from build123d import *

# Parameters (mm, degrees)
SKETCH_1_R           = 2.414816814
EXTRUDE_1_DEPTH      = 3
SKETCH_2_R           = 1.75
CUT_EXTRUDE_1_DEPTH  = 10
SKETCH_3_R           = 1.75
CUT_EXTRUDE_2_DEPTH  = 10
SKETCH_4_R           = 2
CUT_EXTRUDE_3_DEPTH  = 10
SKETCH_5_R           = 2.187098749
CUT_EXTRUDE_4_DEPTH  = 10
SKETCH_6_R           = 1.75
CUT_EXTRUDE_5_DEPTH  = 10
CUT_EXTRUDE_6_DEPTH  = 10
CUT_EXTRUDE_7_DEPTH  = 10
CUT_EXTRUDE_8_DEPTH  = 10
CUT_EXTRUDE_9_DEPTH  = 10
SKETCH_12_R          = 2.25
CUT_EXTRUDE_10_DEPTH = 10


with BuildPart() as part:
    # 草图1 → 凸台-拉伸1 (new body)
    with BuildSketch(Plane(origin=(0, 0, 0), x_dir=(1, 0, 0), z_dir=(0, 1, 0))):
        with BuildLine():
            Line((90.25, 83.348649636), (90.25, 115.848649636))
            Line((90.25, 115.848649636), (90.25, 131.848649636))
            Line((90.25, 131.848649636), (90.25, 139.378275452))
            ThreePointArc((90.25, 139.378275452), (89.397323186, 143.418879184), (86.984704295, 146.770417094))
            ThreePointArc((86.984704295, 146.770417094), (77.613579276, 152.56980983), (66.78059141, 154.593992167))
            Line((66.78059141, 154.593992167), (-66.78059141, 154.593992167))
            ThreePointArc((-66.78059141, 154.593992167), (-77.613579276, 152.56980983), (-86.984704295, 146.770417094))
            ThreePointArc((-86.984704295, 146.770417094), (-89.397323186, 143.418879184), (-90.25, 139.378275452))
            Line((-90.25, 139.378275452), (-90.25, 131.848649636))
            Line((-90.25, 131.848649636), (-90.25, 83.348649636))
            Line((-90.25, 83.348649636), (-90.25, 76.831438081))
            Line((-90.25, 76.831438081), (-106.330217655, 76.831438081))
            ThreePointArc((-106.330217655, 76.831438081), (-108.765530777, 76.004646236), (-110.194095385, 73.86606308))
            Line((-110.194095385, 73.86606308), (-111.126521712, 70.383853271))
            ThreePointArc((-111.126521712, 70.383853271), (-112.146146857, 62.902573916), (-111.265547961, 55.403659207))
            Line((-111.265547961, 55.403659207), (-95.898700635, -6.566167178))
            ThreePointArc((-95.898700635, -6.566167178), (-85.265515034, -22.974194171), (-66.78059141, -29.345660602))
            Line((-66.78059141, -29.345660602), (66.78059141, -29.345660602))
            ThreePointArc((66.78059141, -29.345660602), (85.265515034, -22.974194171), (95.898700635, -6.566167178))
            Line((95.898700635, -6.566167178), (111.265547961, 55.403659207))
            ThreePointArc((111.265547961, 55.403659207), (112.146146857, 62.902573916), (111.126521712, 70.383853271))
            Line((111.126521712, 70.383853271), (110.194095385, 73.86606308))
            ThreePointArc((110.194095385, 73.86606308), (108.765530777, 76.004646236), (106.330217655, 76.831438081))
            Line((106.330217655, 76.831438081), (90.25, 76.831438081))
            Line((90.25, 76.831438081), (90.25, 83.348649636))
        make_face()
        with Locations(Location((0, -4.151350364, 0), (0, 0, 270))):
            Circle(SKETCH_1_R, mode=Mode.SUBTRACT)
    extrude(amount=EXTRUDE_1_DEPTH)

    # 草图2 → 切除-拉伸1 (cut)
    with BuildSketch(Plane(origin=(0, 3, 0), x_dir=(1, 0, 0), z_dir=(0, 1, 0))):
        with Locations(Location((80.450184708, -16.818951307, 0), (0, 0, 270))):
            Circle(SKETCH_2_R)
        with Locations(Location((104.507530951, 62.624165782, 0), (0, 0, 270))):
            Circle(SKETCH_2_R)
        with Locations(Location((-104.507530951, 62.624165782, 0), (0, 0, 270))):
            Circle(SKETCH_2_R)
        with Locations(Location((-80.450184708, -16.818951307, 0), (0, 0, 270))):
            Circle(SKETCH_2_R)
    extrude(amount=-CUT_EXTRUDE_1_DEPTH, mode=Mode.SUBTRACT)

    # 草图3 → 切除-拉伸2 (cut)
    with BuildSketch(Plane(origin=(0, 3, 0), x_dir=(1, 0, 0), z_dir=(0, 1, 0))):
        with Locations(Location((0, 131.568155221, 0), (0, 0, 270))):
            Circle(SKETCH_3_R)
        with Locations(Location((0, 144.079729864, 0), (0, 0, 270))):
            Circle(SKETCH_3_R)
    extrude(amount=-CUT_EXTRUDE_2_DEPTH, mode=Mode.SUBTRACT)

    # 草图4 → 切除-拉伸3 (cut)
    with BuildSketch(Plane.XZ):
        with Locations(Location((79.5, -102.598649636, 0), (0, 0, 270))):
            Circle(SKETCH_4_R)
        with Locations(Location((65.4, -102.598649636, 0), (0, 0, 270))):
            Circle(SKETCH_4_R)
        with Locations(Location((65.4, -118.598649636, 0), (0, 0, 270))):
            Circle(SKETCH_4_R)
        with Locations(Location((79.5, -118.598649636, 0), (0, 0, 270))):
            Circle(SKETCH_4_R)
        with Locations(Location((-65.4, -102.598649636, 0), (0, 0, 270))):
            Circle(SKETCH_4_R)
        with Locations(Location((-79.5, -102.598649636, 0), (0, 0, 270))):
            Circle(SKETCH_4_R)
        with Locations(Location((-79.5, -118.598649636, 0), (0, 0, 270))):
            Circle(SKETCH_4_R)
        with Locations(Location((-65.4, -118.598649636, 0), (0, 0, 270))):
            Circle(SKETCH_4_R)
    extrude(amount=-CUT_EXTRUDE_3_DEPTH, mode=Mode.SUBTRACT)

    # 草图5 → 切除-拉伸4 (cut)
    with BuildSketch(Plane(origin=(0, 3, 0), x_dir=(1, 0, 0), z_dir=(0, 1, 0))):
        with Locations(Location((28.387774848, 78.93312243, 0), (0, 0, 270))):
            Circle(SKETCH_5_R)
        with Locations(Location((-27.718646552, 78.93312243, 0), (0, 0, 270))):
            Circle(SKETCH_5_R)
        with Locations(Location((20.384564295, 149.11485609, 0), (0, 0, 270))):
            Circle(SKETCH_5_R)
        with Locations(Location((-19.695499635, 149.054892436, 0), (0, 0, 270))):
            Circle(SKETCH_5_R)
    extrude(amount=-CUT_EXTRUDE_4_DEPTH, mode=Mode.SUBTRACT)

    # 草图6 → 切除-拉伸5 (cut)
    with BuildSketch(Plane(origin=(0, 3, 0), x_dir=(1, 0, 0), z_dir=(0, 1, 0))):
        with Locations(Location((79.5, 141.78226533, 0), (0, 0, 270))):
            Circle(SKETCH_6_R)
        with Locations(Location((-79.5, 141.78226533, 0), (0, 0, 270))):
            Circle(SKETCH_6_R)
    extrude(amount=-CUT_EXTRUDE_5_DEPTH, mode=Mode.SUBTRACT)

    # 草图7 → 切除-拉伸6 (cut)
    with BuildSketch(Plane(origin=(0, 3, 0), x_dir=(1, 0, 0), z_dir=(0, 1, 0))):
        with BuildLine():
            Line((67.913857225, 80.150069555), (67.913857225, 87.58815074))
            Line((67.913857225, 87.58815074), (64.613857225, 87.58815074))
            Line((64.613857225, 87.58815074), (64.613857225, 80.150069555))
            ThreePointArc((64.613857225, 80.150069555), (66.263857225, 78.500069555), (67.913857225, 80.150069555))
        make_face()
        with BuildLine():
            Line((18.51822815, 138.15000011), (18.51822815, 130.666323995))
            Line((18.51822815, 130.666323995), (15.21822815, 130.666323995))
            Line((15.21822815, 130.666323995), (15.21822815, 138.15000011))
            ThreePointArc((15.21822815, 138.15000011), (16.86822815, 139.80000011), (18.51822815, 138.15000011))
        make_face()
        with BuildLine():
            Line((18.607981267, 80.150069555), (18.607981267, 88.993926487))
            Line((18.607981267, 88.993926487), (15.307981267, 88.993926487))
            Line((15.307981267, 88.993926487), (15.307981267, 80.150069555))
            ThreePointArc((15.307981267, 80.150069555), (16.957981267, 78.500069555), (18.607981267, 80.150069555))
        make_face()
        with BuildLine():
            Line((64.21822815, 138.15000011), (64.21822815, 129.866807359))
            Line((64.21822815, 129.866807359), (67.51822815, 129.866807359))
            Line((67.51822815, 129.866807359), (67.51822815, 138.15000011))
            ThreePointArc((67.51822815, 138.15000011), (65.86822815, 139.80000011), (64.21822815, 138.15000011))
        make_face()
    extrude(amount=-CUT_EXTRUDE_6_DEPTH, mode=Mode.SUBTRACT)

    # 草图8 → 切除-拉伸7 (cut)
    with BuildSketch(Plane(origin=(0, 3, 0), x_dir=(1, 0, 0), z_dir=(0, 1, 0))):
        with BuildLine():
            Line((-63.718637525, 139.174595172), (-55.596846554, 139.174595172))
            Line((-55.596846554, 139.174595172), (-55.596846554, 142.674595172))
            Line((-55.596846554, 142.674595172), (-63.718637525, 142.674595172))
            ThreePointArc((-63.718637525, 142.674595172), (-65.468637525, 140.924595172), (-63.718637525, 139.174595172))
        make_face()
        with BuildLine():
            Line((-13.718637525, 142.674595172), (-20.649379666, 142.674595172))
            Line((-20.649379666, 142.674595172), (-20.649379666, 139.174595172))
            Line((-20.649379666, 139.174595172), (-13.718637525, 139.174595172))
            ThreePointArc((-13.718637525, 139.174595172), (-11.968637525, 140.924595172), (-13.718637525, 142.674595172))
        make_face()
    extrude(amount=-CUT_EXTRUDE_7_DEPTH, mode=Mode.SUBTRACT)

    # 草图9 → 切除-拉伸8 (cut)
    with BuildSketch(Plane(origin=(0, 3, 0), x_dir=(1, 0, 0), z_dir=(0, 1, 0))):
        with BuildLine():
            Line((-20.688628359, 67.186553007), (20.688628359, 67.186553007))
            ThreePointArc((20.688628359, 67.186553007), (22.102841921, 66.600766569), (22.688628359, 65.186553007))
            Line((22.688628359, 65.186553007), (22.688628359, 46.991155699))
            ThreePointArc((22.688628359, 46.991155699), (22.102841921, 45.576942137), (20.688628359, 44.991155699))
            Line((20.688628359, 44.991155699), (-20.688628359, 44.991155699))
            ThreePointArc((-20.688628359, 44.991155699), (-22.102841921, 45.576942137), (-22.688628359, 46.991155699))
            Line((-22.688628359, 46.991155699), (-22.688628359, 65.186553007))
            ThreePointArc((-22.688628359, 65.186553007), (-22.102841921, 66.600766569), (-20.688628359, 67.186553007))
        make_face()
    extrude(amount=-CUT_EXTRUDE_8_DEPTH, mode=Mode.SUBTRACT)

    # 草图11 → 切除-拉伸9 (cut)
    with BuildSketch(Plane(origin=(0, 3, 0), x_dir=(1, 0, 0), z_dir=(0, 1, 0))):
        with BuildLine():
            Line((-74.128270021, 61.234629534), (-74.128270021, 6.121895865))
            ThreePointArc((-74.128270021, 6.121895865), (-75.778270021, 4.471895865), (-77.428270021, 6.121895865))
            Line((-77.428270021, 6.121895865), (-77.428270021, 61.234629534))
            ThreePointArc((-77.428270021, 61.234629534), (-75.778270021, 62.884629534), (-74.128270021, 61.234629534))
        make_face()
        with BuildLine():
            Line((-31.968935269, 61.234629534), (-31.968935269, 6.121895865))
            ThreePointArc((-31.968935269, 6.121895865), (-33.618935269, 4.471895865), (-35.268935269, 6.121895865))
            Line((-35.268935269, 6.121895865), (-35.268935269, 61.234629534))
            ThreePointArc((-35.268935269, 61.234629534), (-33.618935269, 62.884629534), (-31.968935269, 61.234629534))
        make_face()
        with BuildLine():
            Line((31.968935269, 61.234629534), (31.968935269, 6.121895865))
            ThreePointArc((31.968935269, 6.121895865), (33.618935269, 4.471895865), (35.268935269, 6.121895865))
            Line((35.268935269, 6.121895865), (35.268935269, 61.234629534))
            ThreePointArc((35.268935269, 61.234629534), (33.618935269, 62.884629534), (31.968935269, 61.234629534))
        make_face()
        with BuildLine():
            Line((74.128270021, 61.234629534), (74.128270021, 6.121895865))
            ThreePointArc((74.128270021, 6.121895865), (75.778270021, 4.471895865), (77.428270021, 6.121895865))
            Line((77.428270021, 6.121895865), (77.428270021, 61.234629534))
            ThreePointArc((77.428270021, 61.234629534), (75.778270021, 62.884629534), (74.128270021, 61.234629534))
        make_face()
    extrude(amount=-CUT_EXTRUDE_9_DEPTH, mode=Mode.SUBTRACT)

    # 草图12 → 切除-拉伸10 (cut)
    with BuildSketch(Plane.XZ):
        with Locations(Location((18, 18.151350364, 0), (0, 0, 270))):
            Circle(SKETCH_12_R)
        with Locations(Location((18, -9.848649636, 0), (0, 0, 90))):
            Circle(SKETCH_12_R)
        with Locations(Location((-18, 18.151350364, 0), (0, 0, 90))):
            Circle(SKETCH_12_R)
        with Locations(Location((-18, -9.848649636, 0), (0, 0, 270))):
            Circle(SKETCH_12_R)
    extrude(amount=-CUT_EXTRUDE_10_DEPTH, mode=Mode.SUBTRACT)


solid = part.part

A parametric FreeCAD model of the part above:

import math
import FreeCAD as App
import Part
import Sketcher
from FreeCAD import Vector

doc = App.newDocument("Part")
params = doc.addObject("Spreadsheet::Sheet", "Params")
for row, (alias, value) in enumerate([
    ("sketch1_radius", "10 mm"),
    ("sketch1_radius2", "30 mm"),
    ("sketch1_radius3", "4 mm"),
    ("pad1_length", "3 mm"),
    ("sketch2_diameter", "3.5 mm"),
    ("pocket1_length", "10 mm"),
    ("sketch3_diameter", "3.5 mm"),
    ("pocket2_length", "10 mm"),
    ("sketch4_diameter", "4 mm"),
    ("pocket3_length", "10 mm"),
    ("pocket4_length", "10 mm"),
    ("sketch6_diameter", "3.5 mm"),
    ("pocket5_length", "10 mm"),
    ("sketch7_radius", "1.65 mm"),
    ("pocket6_length", "10 mm"),
    ("sketch8_radius", "1.75 mm"),
    ("pocket7_length", "10 mm"),
    ("sketch9_radius", "2 mm"),
    ("pocket8_length", "10 mm"),
    ("sketch10_radius", "1.65 mm"),
    ("pocket9_length", "10 mm"),
    ("sketch11_diameter", "4.5 mm"),
    ("pocket10_length", "10 mm"),
], start=1):
    params.set(f"A{row}", alias)
    params.set(f"B{row}", "=" + value)
    params.setAlias(f"B{row}", alias)

body = doc.addObject("PartDesign::Body", "Body")

sketch1 = doc.addObject("Sketcher::SketchObject", "Sketch")
body.addObject(sketch1)
sketch1.AttachmentSupport = (doc.XZ_Plane, [""])
sketch1.MapMode = "FlatFace"
sketch1.addGeometry([
    Part.ArcOfCircle(Part.Circle(Vector(80.25, -139.378275, 0), Vector(0, 0, 1), 10), math.radians(-47.664517), math.radians(0)),
    Part.ArcOfCircle(Part.Circle(Vector(66.780591, -124.593992, 0), Vector(0, 0, 1), 30), math.radians(-90), math.radians(-47.664517)),
    Part.LineSegment(Vector(66.780591, -154.593992, 0), Vector(-66.780591, -154.593992, 0)),
    Part.ArcOfCircle(Part.Circle(Vector(-66.780591, -124.593992, 0), Vector(0, 0, 1), 30), math.radians(-132.335483), math.radians(-90)),
    Part.ArcOfCircle(Part.Circle(Vector(-80.25, -139.378275, 0), Vector(0, 0, 1), 10), math.radians(-180), math.radians(-132.335483)),
    Part.LineSegment(Vector(-90.25, -139.378275, 0), Vector(-90.25, -76.831438, 0)),
    Part.LineSegment(Vector(-90.25, -76.831438, 0), Vector(-106.330218, -76.831438, 0)),
    Part.ArcOfCircle(Part.Circle(Vector(-106.330218, -72.831438, 0), Vector(0, 0, 1), 4), math.radians(-165.009656), math.radians(-90)),
    Part.LineSegment(Vector(-110.194095, -73.866063, 0), Vector(-111.126522, -70.383853, 0)),
    Part.ArcOfCircle(Part.Circle(Vector(-82.147439, -62.624166, 0), Vector(0, 0, 1), 30), math.radians(166.073112), math.radians(194.990344)),
    Part.LineSegment(Vector(-111.265548, -55.403659, 0), Vector(-95.898701, 6.566167, 0)),
    Part.ArcOfCircle(Part.Circle(Vector(-66.780591, -0.654339, 0), Vector(0, 0, 1), 30), math.radians(90), math.radians(166.073112)),
    Part.LineSegment(Vector(-66.780591, 29.345661, 0), Vector(66.780591, 29.345661, 0)),
    Part.ArcOfCircle(Part.Circle(Vector(66.780591, -0.654339, 0), Vector(0, 0, 1), 30), math.radians(13.926888), math.radians(90)),
    Part.LineSegment(Vector(95.898701, 6.566167, 0), Vector(111.265548, -55.403659, 0)),
    Part.ArcOfCircle(Part.Circle(Vector(82.147439, -62.624166, 0), Vector(0, 0, 1), 30), math.radians(-14.990344), math.radians(13.926888)),
    Part.LineSegment(Vector(111.126522, -70.383853, 0), Vector(110.194095, -73.866063, 0)),
    Part.ArcOfCircle(Part.Circle(Vector(106.330218, -72.831438, 0), Vector(0, 0, 1), 4), math.radians(-90), math.radians(-14.990344)),
    Part.LineSegment(Vector(106.330218, -76.831438, 0), Vector(90.25, -76.831438, 0)),
    Part.LineSegment(Vector(90.25, -76.831438, 0), Vector(90.25, -139.378275, 0)),
    Part.Circle(Vector(0, 4.15135, 0), Vector(0, 0, 1), 2.414817),
], False)
sketch1.addConstraint([
    Sketcher.Constraint("Tangent", 0, 1, 1, 2),
    Sketcher.Constraint("Tangent", 1, 1, 2, 1),
    Sketcher.Constraint("Tangent", 2, 2, 3, 2),
    Sketcher.Constraint("Tangent", 3, 1, 4, 2),
    Sketcher.Constraint("Tangent", 4, 1, 5, 1),
    Sketcher.Constraint("Coincident", 5, 2, 6, 1),
    Sketcher.Constraint("Tangent", 6, 2, 7, 2),
    Sketcher.Constraint("Tangent", 7, 1, 8, 1),
    Sketcher.Constraint("Tangent", 8, 2, 9, 2),
    Sketcher.Constraint("Tangent", 9, 1, 10, 1),
    Sketcher.Constraint("Tangent", 10, 2, 11, 2),
    Sketcher.Constraint("Tangent", 11, 1, 12, 1),
    Sketcher.Constraint("Tangent", 12, 2, 13, 2),
    Sketcher.Constraint("Tangent", 13, 1, 14, 1),
    Sketcher.Constraint("Tangent", 14, 2, 15, 2),
    Sketcher.Constraint("Tangent", 15, 1, 16, 1),
    Sketcher.Constraint("Tangent", 16, 2, 17, 2),
    Sketcher.Constraint("Tangent", 17, 1, 18, 1),
    Sketcher.Constraint("Coincident", 18, 2, 19, 1),
    Sketcher.Constraint("Tangent", 19, 2, 0, 2),
    Sketcher.Constraint("Horizontal", 2),
    Sketcher.Constraint("Vertical", 5),
    Sketcher.Constraint("Horizontal", 6),
    Sketcher.Constraint("Horizontal", 12),
    Sketcher.Constraint("Horizontal", 18),
    Sketcher.Constraint("Vertical", 19),
    Sketcher.Constraint("Equal", 1, 3),
    Sketcher.Constraint("Equal", 0, 4),
    Sketcher.Constraint("Equal", 3, 9),
    Sketcher.Constraint("Equal", 9, 11),
    Sketcher.Constraint("Equal", 11, 13),
    Sketcher.Constraint("Equal", 13, 15),
    Sketcher.Constraint("Equal", 7, 17),
    Sketcher.Constraint("Symmetric", 0, 3, 4, 3, -2),
    Sketcher.Constraint("Symmetric", 9, 3, 15, 3, -2),
    Sketcher.Constraint("Symmetric", 7, 3, 17, 3, -2),
    Sketcher.Constraint("PointOnObject", 20, 3, -2),
    Sketcher.Constraint("Horizontal", 10, 2, 13, 1),
    Sketcher.Constraint("Vertical", 3, 3, 11, 3),
    Sketcher.Constraint("Radius", 0, 10.0),
    Sketcher.Constraint("Radius", 1, 30.0),
    Sketcher.Constraint("Radius", 7, 4.0),
    Sketcher.Constraint("DistanceX", 4, 3, 0, 3, 160.5),
    Sketcher.Constraint("Diameter", 20, 4.829634),
    Sketcher.Constraint("DistanceX", 10, 2, -1, 1, 95.898701),
    Sketcher.Constraint("DistanceY", 7, 3, 11, 3, 72.177099),
    Sketcher.Constraint("DistanceX", 2, 2, 2, 1, 133.561183),
    Sketcher.Constraint("DistanceX", 6, 2, 6, 1, 16.080218),
    Sketcher.Constraint("DistanceY", 5, 1, 5, 2, 62.546837),
    Sketcher.Constraint("DistanceY", 7, 3, -1, 1, 72.831438),
    Sketcher.Constraint("DistanceX", 9, 3, -1, 1, 82.147439),
    Sketcher.Constraint("DistanceY", -1, 1, 20, 3, 4.15135),
])
sketch1.setExpression("Constraints[39]", "Params.sketch1_radius")
sketch1.setExpression("Constraints[40]", "Params.sketch1_radius2")
sketch1.setExpression("Constraints[41]", "Params.sketch1_radius3")
pad1 = doc.addObject("PartDesign::Pad", "Pad")
body.addObject(pad1)
pad1.Profile = sketch1
pad1.setExpression("Length", "Params.pad1_length")
pad1.Reversed = True

sketch2 = doc.addObject("Sketcher::SketchObject", "Sketch001")
body.addObject(sketch2)
sketch2.AttachmentSupport = (doc.XZ_Plane, [""])
sketch2.MapMode = "FlatFace"
sketch2.AttachmentOffset = App.Placement(Vector(0, 0, -3), App.Rotation())
sketch2.addGeometry([
    Part.Circle(Vector(80.5, 16.8, 0), Vector(0, 0, 1), 1.8),
    Part.Circle(Vector(104.5, -62.6, 0), Vector(0, 0, 1), 1.8),
    Part.Circle(Vector(-104.5, -62.6, 0), Vector(0, 0, 1), 1.8),
    Part.Circle(Vector(-80.5, 16.8, 0), Vector(0, 0, 1), 1.8),
], False)
sketch2.addConstraint([
    Sketcher.Constraint("Equal", 0, 1),
    Sketcher.Constraint("Equal", 1, 2),
    Sketcher.Constraint("Equal", 2, 3),
    Sketcher.Constraint("Symmetric", 1, 3, 2, 3, -2),
    Sketcher.Constraint("Symmetric", 0, 3, 3, 3, -2),
    Sketcher.Constraint("Diameter", 0, 3.5),
    Sketcher.Constraint("DistanceY", -1, 1, 0, 3, 16.818951),
    Sketcher.Constraint("DistanceX", -1, 1, 1, 3, 104.507531),
    Sketcher.Constraint("DistanceX", 3, 3, 0, 3, 160.900369),
    Sketcher.Constraint("DistanceY", 1, 3, -1, 1, 62.624166),
])
sketch2.setExpression("Constraints[5]", "Params.sketch2_diameter")
pocket1 = doc.addObject("PartDesign::Pocket", "Pocket")
body.addObject(pocket1)
pocket1.Profile = sketch2
pocket1.setExpression("Length", "Params.pocket1_length")
pocket1.Reversed = True

sketch3 = doc.addObject("Sketcher::SketchObject", "Sketch002")
body.addObject(sketch3)
sketch3.AttachmentSupport = (doc.XZ_Plane, [""])
sketch3.MapMode = "FlatFace"
sketch3.AttachmentOffset = App.Placement(Vector(0, 0, -3), App.Rotation())
sketch3.addGeometry([
    Part.Circle(Vector(0, -131.6, 0), Vector(0, 0, 1), 1.8),
    Part.Circle(Vector(0, -144.1, 0), Vector(0, 0, 1), 1.8),
], False)
sketch3.addConstraint([
    Sketcher.Constraint("Equal", 0, 1),
    Sketcher.Constraint("PointOnObject", 0, 3, -2),
    Sketcher.Constraint("PointOnObject", 1, 3, -2),
    Sketcher.Constraint("Diameter", 0, 3.5),
    Sketcher.Constraint("DistanceY", 1, 3, -1, 1, 144.07973),
    Sketcher.Constraint("DistanceY", 0, 3, -1, 1, 131.568155),
])
sketch3.setExpression("Constraints[3]", "Params.sketch3_diameter")
pocket2 = doc.addObject("PartDesign::Pocket", "Pocket001")
body.addObject(pocket2)
pocket2.Profile = sketch3
pocket2.setExpression("Length", "Params.pocket2_length")
pocket2.Reversed = True

sketch4 = doc.addObject("Sketcher::SketchObject", "Sketch003")
body.addObject(sketch4)
sketch4.AttachmentSupport = (doc.XZ_Plane, [""])
sketch4.MapMode = "FlatFace"
sketch4.addGeometry([
    Part.Circle(Vector(79.5, -102.6, 0), Vector(0, 0, 1), 2),
    Part.Circle(Vector(65.4, -102.6, 0), Vector(0, 0, 1), 2),
    Part.Circle(Vector(65.4, -118.6, 0), Vector(0, 0, 1), 2),
    Part.Circle(Vector(79.5, -118.6, 0), Vector(0, 0, 1), 2),
    Part.Circle(Vector(-65.4, -102.6, 0), Vector(0, 0, 1), 2),
    Part.Circle(Vector(-79.5, -102.6, 0), Vector(0, 0, 1), 2),
    Part.Circle(Vector(-79.5, -118.6, 0), Vector(0, 0, 1), 2),
    Part.Circle(Vector(-65.4, -118.6, 0), Vector(0, 0, 1), 2),
], False)
sketch4.addConstraint([
    Sketcher.Constraint("Equal", 0, 1),
    Sketcher.Constraint("Equal", 1, 2),
    Sketcher.Constraint("Equal", 2, 3),
    Sketcher.Constraint("Equal", 3, 4),
    Sketcher.Constraint("Equal", 4, 5),
    Sketcher.Constraint("Equal", 5, 6),
    Sketcher.Constraint("Equal", 6, 7),
    Sketcher.Constraint("Symmetric", 1, 3, 4, 3, -2),
    Sketcher.Constraint("Symmetric", 0, 3, 5, 3, -2),
    Sketcher.Constraint("Symmetric", 3, 3, 6, 3, -2),
    Sketcher.Constraint("Symmetric", 2, 3, 7, 3, -2),
    Sketcher.Constraint("Horizontal", 0, 3, 1, 3),
    Sketcher.Constraint("Horizontal", 2, 3, 3, 3),
    Sketcher.Constraint("Vertical", 1, 3, 2, 3),
    Sketcher.Constraint("Vertical", 0, 3, 3, 3),
    Sketcher.Constraint("Diameter", 0, 4.0),
    Sketcher.Constraint("DistanceY", 2, 3, 1, 3, 16.0),
    Sketcher.Constraint("DistanceX", 5, 3, 0, 3, 159.0),
    Sketcher.Constraint("DistanceX", -1, 1, 1, 3, 65.4),
    Sketcher.Constraint("DistanceY", 0, 3, -1, 1, 102.59865),
])
sketch4.setExpression("Constraints[15]", "Params.sketch4_diameter")
pocket3 = doc.addObject("PartDesign::Pocket", "Pocket002")
body.addObject(pocket3)
pocket3.Profile = sketch4
pocket3.setExpression("Length", "Params.pocket3_length")

sketch5 = doc.addObject("Sketcher::SketchObject", "Sketch004")
body.addObject(sketch5)
sketch5.AttachmentSupport = (doc.XZ_Plane, [""])
sketch5.MapMode = "FlatFace"
sketch5.AttachmentOffset = App.Placement(Vector(0, 0, -3), App.Rotation())
sketch5.addGeometry([
    Part.Circle(Vector(28.4, -78.9, 0), Vector(0, 0, 1), 2.2),
    Part.Circle(Vector(-27.7, -78.9, 0), Vector(0, 0, 1), 2.2),
    Part.Circle(Vector(20.4, -149.1, 0), Vector(0, 0, 1), 2.2),
    Part.Circle(Vector(-19.7, -149.1, 0), Vector(0, 0, 1), 2.2),
], False)
sketch5.addConstraint([
    Sketcher.Constraint("Equal", 0, 1),
    Sketcher.Constraint("Equal", 1, 2),
    Sketcher.Constraint("Equal", 2, 3),
    Sketcher.Constraint("Horizontal", 0, 3, 1, 3),
    Sketcher.Constraint("Diameter", 0, 4.374197),
    Sketcher.Constraint("DistanceX", 3, 3, -1, 1, 19.6955),
    Sketcher.Constraint("DistanceX", 1, 3, 0, 3, 56.106421),
    Sketcher.Constraint("DistanceX", 2, 3, 0, 3, 8.003211),
    Sketcher.Constraint("DistanceY", 3, 3, 1, 3, 70.12177),
    Sketcher.Constraint("DistanceX", -1, 1, 0, 3, 28.387775),
    Sketcher.Constraint("DistanceY", 0, 3, -1, 1, 78.933122),
    Sketcher.Constraint("DistanceY", 2, 3, -1, 1, 149.114856),
])
pocket4 = doc.addObject("PartDesign::Pocket", "Pocket003")
body.addObject(pocket4)
pocket4.Profile = sketch5
pocket4.setExpression("Length", "Params.pocket4_length")
pocket4.Reversed = True

sketch6 = doc.addObject("Sketcher::SketchObject", "Sketch005")
body.addObject(sketch6)
sketch6.AttachmentSupport = (doc.XZ_Plane, [""])
sketch6.MapMode = "FlatFace"
sketch6.AttachmentOffset = App.Placement(Vector(0, 0, -3), App.Rotation())
sketch6.addGeometry([
    Part.Circle(Vector(79.5, -141.8, 0), Vector(0, 0, 1), 1.8),
    Part.Circle(Vector(-79.5, -141.8, 0), Vector(0, 0, 1), 1.8),
], False)
sketch6.addConstraint([
    Sketcher.Constraint("Equal", 0, 1),
    Sketcher.Constraint("Symmetric", 0, 3, 1, 3, -2),
    Sketcher.Constraint("Diameter", 0, 3.5),
    Sketcher.Constraint("DistanceX", 1, 3, 0, 3, 159.0),
    Sketcher.Constraint("DistanceY", 0, 3, -1, 1, 141.782265),
])
sketch6.setExpression("Constraints[2]", "Params.sketch6_diameter")
pocket5 = doc.addObject("PartDesign::Pocket", "Pocket004")
body.addObject(pocket5)
pocket5.Profile = sketch6
pocket5.setExpression("Length", "Params.pocket5_length")
pocket5.Reversed = True

sketch7 = doc.addObject("Sketcher::SketchObject", "Sketch006")
body.addObject(sketch7)
sketch7.AttachmentSupport = (doc.XZ_Plane, [""])
sketch7.MapMode = "FlatFace"
sketch7.AttachmentOffset = App.Placement(Vector(0, 0, -3), App.Rotation())
sketch7.addGeometry([
    Part.LineSegment(Vector(67.9, -80.2, 0), Vector(67.9, -87.6, 0)),
    Part.LineSegment(Vector(67.9, -87.6, 0), Vector(64.6, -87.6, 0)),
    Part.LineSegment(Vector(64.6, -87.6, 0), Vector(64.6, -80.2, 0)),
    Part.ArcOfCircle(Part.Circle(Vector(66.3, -80.2, 0), Vector(0, 0, 1), 1.6), math.radians(0), math.radians(180)),
    Part.LineSegment(Vector(18.5, -130.7, 0), Vector(18.5, -138.2, 0)),
    Part.ArcOfCircle(Part.Circle(Vector(16.9, -138.2, 0), Vector(0, 0, 1), 1.6), math.radians(180), math.radians(360)),
    Part.LineSegment(Vector(15.2, -138.2, 0), Vector(15.2, -130.7, 0)),
    Part.LineSegment(Vector(15.2, -130.7, 0), Vector(18.5, -130.7, 0)),
    Part.LineSegment(Vector(18.6, -80.2, 0), Vector(18.6, -89, 0)),
    Part.LineSegment(Vector(18.6, -89, 0), Vector(15.3, -89, 0)),
    Part.LineSegment(Vector(15.3, -89, 0), Vector(15.3, -80.2, 0)),
    Part.ArcOfCircle(Part.Circle(Vector(17, -80.2, 0), Vector(0, 0, 1), 1.6), math.radians(0), math.radians(180)),
    Part.LineSegment(Vector(64.2, -138.2, 0), Vector(64.2, -129.9, 0)),
    Part.LineSegment(Vector(64.2, -129.9, 0), Vector(67.5, -129.9, 0)),
    Part.LineSegment(Vector(67.5, -129.9, 0), Vector(67.5, -138.2, 0)),
    Part.ArcOfCircle(Part.Circle(Vector(65.9, -138.2, 0), Vector(0, 0, 1), 1.6), math.radians(180), math.radians(360)),
], False)
sketch7.addConstraint([
    Sketcher.Constraint("Coincident", 0, 2, 1, 1),
    Sketcher.Constraint("Coincident", 1, 2, 2, 1),
    Sketcher.Constraint("Tangent", 2, 2, 3, 2),
    Sketcher.Constraint("Tangent", 3, 1, 0, 1),
    Sketcher.Constraint("Tangent", 4, 2, 5, 2),
    Sketcher.Constraint("Tangent", 5, 1, 6, 1),
    Sketcher.Constraint("Coincident", 6, 2, 7, 1),
    Sketcher.Constraint("Coincident", 7, 2, 4, 1),
    Sketcher.Constraint("Coincident", 8, 2, 9, 1),
    Sketcher.Constraint("Coincident", 9, 2, 10, 1),
    Sketcher.Constraint("Tangent", 10, 2, 11, 2),
    Sketcher.Constraint("Tangent", 11, 1, 8, 1),
    Sketcher.Constraint("Coincident", 12, 2, 13, 1),
    Sketcher.Constraint("Coincident", 13, 2, 14, 1),
    Sketcher.Constraint("Tangent", 14, 2, 15, 2),
    Sketcher.Constraint("Tangent", 15, 1, 12, 1),
    Sketcher.Constraint("Vertical", 0),
    Sketcher.Constraint("Horizontal", 1),
    Sketcher.Constraint("Vertical", 2),
    Sketcher.Constraint("Vertical", 4),
    Sketcher.Constraint("Vertical", 6),
    Sketcher.Constraint("Horizontal", 7),
    Sketcher.Constraint("Vertical", 8),
    Sketcher.Constraint("Horizontal", 9),
    Sketcher.Constraint("Vertical", 10),
    Sketcher.Constraint("Vertical", 12),
    Sketcher.Constraint("Horizontal", 13),
    Sketcher.Constraint("Vertical", 14),
    Sketcher.Constraint("Equal", 3, 5),
    Sketcher.Constraint("Equal", 5, 11),
    Sketcher.Constraint("Equal", 11, 15),
    Sketcher.Constraint("Horizontal", 3, 3, 11, 3),
    Sketcher.Constraint("Horizontal", 5, 3, 15, 3),
    Sketcher.Constraint("Radius", 3, 1.65),
    Sketcher.Constraint("DistanceX", 5, 3, 15, 3, 49.0),
    Sketcher.Constraint("DistanceY", 5, 3, -1, 1, 138.15),
    Sketcher.Constraint("DistanceY", 0, 2, 0, 1, 7.438081),
    Sketcher.Constraint("DistanceY", 4, 2, 4, 1, 7.483676),
    Sketcher.Constraint("DistanceY", 8, 2, 8, 1, 8.843857),
    Sketcher.Constraint("DistanceY", 12, 1, 12, 2, 8.283193),
    Sketcher.Constraint("DistanceY", 3, 3, -1, 1, 80.15007),
    Sketcher.Constraint("DistanceX", -1, 1, 5, 3, 16.868228),
    Sketcher.Constraint("DistanceX", -1, 1, 11, 3, 16.957981),
    Sketcher.Constraint("DistanceX", 5, 3, 3, 3, 49.395629),
])
sketch7.setExpression("Constraints[33]", "Params.sketch7_radius")
pocket6 = doc.addObject("PartDesign::Pocket", "Pocket005")
body.addObject(pocket6)
pocket6.Profile = sketch7
pocket6.setExpression("Length", "Params.pocket6_length")
pocket6.Reversed = True

sketch8 = doc.addObject("Sketcher::SketchObject", "Sketch007")
body.addObject(sketch8)
sketch8.AttachmentSupport = (doc.XZ_Plane, [""])
sketch8.MapMode = "FlatFace"
sketch8.AttachmentOffset = App.Placement(Vector(0, 0, -3), App.Rotation())
sketch8.addGeometry([
    Part.LineSegment(Vector(-63.7, -139.2, 0), Vector(-55.6, -139.2, 0)),
    Part.LineSegment(Vector(-55.6, -139.2, 0), Vector(-55.6, -142.7, 0)),
    Part.LineSegment(Vector(-55.6, -142.7, 0), Vector(-63.7, -142.7, 0)),
    Part.ArcOfCircle(Part.Circle(Vector(-63.7, -140.9, 0), Vector(0, 0, 1), 1.8), math.radians(90), math.radians(270)),
    Part.LineSegment(Vector(-13.7, -142.7, 0), Vector(-20.6, -142.7, 0)),
    Part.LineSegment(Vector(-20.6, -142.7, 0), Vector(-20.6, -139.2, 0)),
    Part.LineSegment(Vector(-20.6, -139.2, 0), Vector(-13.7, -139.2, 0)),
    Part.ArcOfCircle(Part.Circle(Vector(-13.7, -140.9, 0), Vector(0, 0, 1), 1.8), math.radians(-90), math.radians(90)),
], False)
sketch8.addConstraint([
    Sketcher.Constraint("Coincident", 0, 2, 1, 1),
    Sketcher.Constraint("Coincident", 1, 2, 2, 1),
    Sketcher.Constraint("Tangent", 2, 2, 3, 2),
    Sketcher.Constraint("Tangent", 3, 1, 0, 1),
    Sketcher.Constraint("Coincident", 4, 2, 5, 1),
    Sketcher.Constraint("Coincident", 5, 2, 6, 1),
    Sketcher.Constraint("Tangent", 6, 2, 7, 2),
    Sketcher.Constraint("Tangent", 7, 1, 4, 1),
    Sketcher.Constraint("Horizontal", 0),
    Sketcher.Constraint("Vertical", 1),
    Sketcher.Constraint("Horizontal", 2),
    Sketcher.Constraint("Horizontal", 4),
    Sketcher.Constraint("Vertical", 5),
    Sketcher.Constraint("Horizontal", 6),
    Sketcher.Constraint("Equal", 3, 7),
    Sketcher.Constraint("Horizontal", 3, 3, 7, 3),
    Sketcher.Constraint("Radius", 3, 1.75),
    Sketcher.Constraint("DistanceX", 3, 3, 7, 3, 50.0),
    Sketcher.Constraint("DistanceX", 0, 1, 0, 2, 8.121791),
    Sketcher.Constraint("DistanceX", 4, 2, 4, 1, 6.930742),
    Sketcher.Constraint("DistanceX", 4, 2, -1, 1, 20.64938),
    Sketcher.Constraint("DistanceY", 3, 3, -1, 1, 140.924595),
])
sketch8.setExpression("Constraints[16]", "Params.sketch8_radius")
pocket7 = doc.addObject("PartDesign::Pocket", "Pocket006")
body.addObject(pocket7)
pocket7.Profile = sketch8
pocket7.setExpression("Length", "Params.pocket7_length")
pocket7.Reversed = True

sketch9 = doc.addObject("Sketcher::SketchObject", "Sketch008")
body.addObject(sketch9)
sketch9.AttachmentSupport = (doc.XZ_Plane, [""])
sketch9.MapMode = "FlatFace"
sketch9.AttachmentOffset = App.Placement(Vector(0, 0, -3), App.Rotation())
sketch9.addGeometry([
    Part.LineSegment(Vector(20.7, -67.2, 0), Vector(-20.7, -67.2, 0)),
    Part.ArcOfCircle(Part.Circle(Vector(-20.7, -65.2, 0), Vector(0, 0, 1), 2), math.radians(-180), math.radians(-90)),
    Part.LineSegment(Vector(-22.7, -65.2, 0), Vector(-22.7, -47, 0)),
    Part.ArcOfCircle(Part.Circle(Vector(-20.7, -47, 0), Vector(0, 0, 1), 2), math.radians(90), math.radians(180)),
    Part.LineSegment(Vector(-20.7, -45, 0), Vector(20.7, -45, 0)),
    Part.ArcOfCircle(Part.Circle(Vector(20.7, -47, 0), Vector(0, 0, 1), 2), math.radians(0), math.radians(90)),
    Part.LineSegment(Vector(22.7, -47, 0), Vector(22.7, -65.2, 0)),
    Part.ArcOfCircle(Part.Circle(Vector(20.7, -65.2, 0), Vector(0, 0, 1), 2), math.radians(-90), math.radians(0)),
], False)
sketch9.addConstraint([
    Sketcher.Constraint("Tangent", 0, 2, 1, 2),
    Sketcher.Constraint("Tangent", 1, 1, 2, 1),
    Sketcher.Constraint("Tangent", 2, 2, 3, 2),
    Sketcher.Constraint("Tangent", 3, 1, 4, 1),
    Sketcher.Constraint("Tangent", 4, 2, 5, 2),
    Sketcher.Constraint("Tangent", 5, 1, 6, 1),
    Sketcher.Constraint("Tangent", 6, 2, 7, 2),
    Sketcher.Constraint("Tangent", 7, 1, 0, 1),
    Sketcher.Constraint("Horizontal", 0),
    Sketcher.Constraint("Vertical", 2),
    Sketcher.Constraint("Horizontal", 4),
    Sketcher.Constraint("Vertical", 6),
    Sketcher.Constraint("Equal", 1, 3),
    Sketcher.Constraint("Equal", 3, 5),
    Sketcher.Constraint("Equal", 5, 7),
    Sketcher.Constraint("Radius", 1, 2.0),
    Sketcher.Constraint("DistanceX", 0, 2, 0, 1, 41.377257),
    Sketcher.Constraint("DistanceY", 2, 1, 2, 2, 18.195397),
    Sketcher.Constraint("DistanceX", 1, 3, -1, 1, 20.688628),
    Sketcher.Constraint("DistanceY", 1, 3, -1, 1, 65.186553),
])
sketch9.setExpression("Constraints[15]", "Params.sketch9_radius")
pocket8 = doc.addObject("PartDesign::Pocket", "Pocket007")
body.addObject(pocket8)
pocket8.Profile = sketch9
pocket8.setExpression("Length", "Params.pocket8_length")
pocket8.Reversed = True

sketch10 = doc.addObject("Sketcher::SketchObject", "Sketch009")
body.addObject(sketch10)
sketch10.AttachmentSupport = (doc.XZ_Plane, [""])
sketch10.MapMode = "FlatFace"
sketch10.AttachmentOffset = App.Placement(Vector(0, 0, -3), App.Rotation())
sketch10.addGeometry([
    Part.LineSegment(Vector(-74.1, -6.1, 0), Vector(-74.1, -61.2, 0)),
    Part.ArcOfCircle(Part.Circle(Vector(-75.8, -61.2, 0), Vector(0, 0, 1), 1.6), math.radians(180), math.radians(360)),
    Part.LineSegment(Vector(-77.4, -61.2, 0), Vector(-77.4, -6.1, 0)),
    Part.ArcOfCircle(Part.Circle(Vector(-75.8, -6.1, 0), Vector(0, 0, 1), 1.6), math.radians(0), math.radians(180)),
    Part.LineSegment(Vector(-32, -6.1, 0), Vector(-32, -61.2, 0)),
    Part.ArcOfCircle(Part.Circle(Vector(-33.6, -61.2, 0), Vector(0, 0, 1), 1.6), math.radians(180), math.radians(360)),
    Part.LineSegment(Vector(-35.3, -61.2, 0), Vector(-35.3, -6.1, 0)),
    Part.ArcOfCircle(Part.Circle(Vector(-33.6, -6.1, 0), Vector(0, 0, 1), 1.6), math.radians(0), math.radians(180)),
    Part.LineSegment(Vector(32, -61.2, 0), Vector(32, -6.1, 0)),
    Part.ArcOfCircle(Part.Circle(Vector(33.6, -6.1, 0), Vector(0, 0, 1), 1.6), math.radians(0), math.radians(180)),
    Part.LineSegment(Vector(35.3, -6.1, 0), Vector(35.3, -61.2, 0)),
    Part.ArcOfCircle(Part.Circle(Vector(33.6, -61.2, 0), Vector(0, 0, 1), 1.6), math.radians(180), math.radians(360)),
    Part.LineSegment(Vector(74.1, -61.2, 0), Vector(74.1, -6.1, 0)),
    Part.ArcOfCircle(Part.Circle(Vector(75.8, -6.1, 0), Vector(0, 0, 1), 1.6), math.radians(0), math.radians(180)),
    Part.LineSegment(Vector(77.4, -6.1, 0), Vector(77.4, -61.2, 0)),
    Part.ArcOfCircle(Part.Circle(Vector(75.8, -61.2, 0), Vector(0, 0, 1), 1.6), math.radians(180), math.radians(360)),
], False)
sketch10.addConstraint([
    Sketcher.Constraint("Tangent", 0, 2, 1, 2),
    Sketcher.Constraint("Tangent", 1, 1, 2, 1),
    Sketcher.Constraint("Tangent", 2, 2, 3, 2),
    Sketcher.Constraint("Tangent", 3, 1, 0, 1),
    Sketcher.Constraint("Tangent", 4, 2, 5, 2),
    Sketcher.Constraint("Tangent", 5, 1, 6, 1),
    Sketcher.Constraint("Tangent", 6, 2, 7, 2),
    Sketcher.Constraint("Tangent", 7, 1, 4, 1),
    Sketcher.Constraint("Tangent", 8, 2, 9, 2),
    Sketcher.Constraint("Tangent", 9, 1, 10, 1),
    Sketcher.Constraint("Tangent", 10, 2, 11, 2),
    Sketcher.Constraint("Tangent", 11, 1, 8, 1),
    Sketcher.Constraint("Tangent", 12, 2, 13, 2),
    Sketcher.Constraint("Tangent", 13, 1, 14, 1),
    Sketcher.Constraint("Tangent", 14, 2, 15, 2),
    Sketcher.Constraint("Tangent", 15, 1, 12, 1),
    Sketcher.Constraint("Vertical", 0),
    Sketcher.Constraint("Vertical", 2),
    Sketcher.Constraint("Vertical", 4),
    Sketcher.Constraint("Vertical", 6),
    Sketcher.Constraint("Vertical", 8),
    Sketcher.Constraint("Vertical", 10),
    Sketcher.Constraint("Vertical", 12),
    Sketcher.Constraint("Vertical", 14),
    Sketcher.Constraint("Equal", 3, 5),
    Sketcher.Constraint("Equal", 7, 9),
    Sketcher.Constraint("Equal", 11, 13),
    Sketcher.Constraint("Symmetric", 7, 3, 9, 3, -2),
    Sketcher.Constraint("Symmetric", 3, 3, 13, 3, -2),
    Sketcher.Constraint("Horizontal", 1, 3, 5, 3),
    Sketcher.Constraint("Horizontal", 3, 3, 7, 3),
    Sketcher.Constraint("Horizontal", 5, 3, 11, 3),
    Sketcher.Constraint("Horizontal", 11, 3, 15, 3),
    Sketcher.Constraint("Radius", 1, 1.65),
    Sketcher.Constraint("DistanceY", 0, 2, 0, 1, 55.112734),
    Sketcher.Constraint("DistanceX", 1, 3, -1, 1, 75.77827),
    Sketcher.Constraint("DistanceY", 1, 3, -1, 1, 61.23463),
    Sketcher.Constraint("DistanceX", 7, 3, 9, 3, 67.237871),
])
sketch10.setExpression("Constraints[33]", "Params.sketch10_radius")
pocket9 = doc.addObject("PartDesign::Pocket", "Pocket008")
body.addObject(pocket9)
pocket9.Profile = sketch10
pocket9.setExpression("Length", "Params.pocket9_length")
pocket9.Reversed = True

sketch11 = doc.addObject("Sketcher::SketchObject", "Sketch010")
body.addObject(sketch11)
sketch11.AttachmentSupport = (doc.XZ_Plane, [""])
sketch11.MapMode = "FlatFace"
sketch11.addGeometry([
    Part.Circle(Vector(18, 18.2, 0), Vector(0, 0, 1), 2.2),
    Part.Circle(Vector(18, -9.8, 0), Vector(0, 0, 1), 2.2),
    Part.Circle(Vector(-18, 18.2, 0), Vector(0, 0, 1), 2.2),
    Part.Circle(Vector(-18, -9.8, 0), Vector(0, 0, 1), 2.2),
], False)
sketch11.addConstraint([
    Sketcher.Constraint("Equal", 0, 1),
    Sketcher.Constraint("Equal", 1, 2),
    Sketcher.Constraint("Equal", 2, 3),
    Sketcher.Constraint("Symmetric", 0, 3, 2, 3, -2),
    Sketcher.Constraint("Symmetric", 1, 3, 3, 3, -2),
    Sketcher.Constraint("Vertical", 0, 3, 1, 3),
    Sketcher.Constraint("Diameter", 0, 4.5),
    Sketcher.Constraint("DistanceX", -1, 1, 0, 3, 18.0),
    Sketcher.Constraint("DistanceY", 1, 3, 0, 3, 28.0),
    Sketcher.Constraint("DistanceY", -1, 1, 0, 3, 18.15135),
])
sketch11.setExpression("Constraints[6]", "Params.sketch11_diameter")
pocket10 = doc.addObject("PartDesign::Pocket", "Pocket009")
body.addObject(pocket10)
pocket10.Profile = sketch11
pocket10.setExpression("Length", "Params.pocket10_length")

doc.recompute()
